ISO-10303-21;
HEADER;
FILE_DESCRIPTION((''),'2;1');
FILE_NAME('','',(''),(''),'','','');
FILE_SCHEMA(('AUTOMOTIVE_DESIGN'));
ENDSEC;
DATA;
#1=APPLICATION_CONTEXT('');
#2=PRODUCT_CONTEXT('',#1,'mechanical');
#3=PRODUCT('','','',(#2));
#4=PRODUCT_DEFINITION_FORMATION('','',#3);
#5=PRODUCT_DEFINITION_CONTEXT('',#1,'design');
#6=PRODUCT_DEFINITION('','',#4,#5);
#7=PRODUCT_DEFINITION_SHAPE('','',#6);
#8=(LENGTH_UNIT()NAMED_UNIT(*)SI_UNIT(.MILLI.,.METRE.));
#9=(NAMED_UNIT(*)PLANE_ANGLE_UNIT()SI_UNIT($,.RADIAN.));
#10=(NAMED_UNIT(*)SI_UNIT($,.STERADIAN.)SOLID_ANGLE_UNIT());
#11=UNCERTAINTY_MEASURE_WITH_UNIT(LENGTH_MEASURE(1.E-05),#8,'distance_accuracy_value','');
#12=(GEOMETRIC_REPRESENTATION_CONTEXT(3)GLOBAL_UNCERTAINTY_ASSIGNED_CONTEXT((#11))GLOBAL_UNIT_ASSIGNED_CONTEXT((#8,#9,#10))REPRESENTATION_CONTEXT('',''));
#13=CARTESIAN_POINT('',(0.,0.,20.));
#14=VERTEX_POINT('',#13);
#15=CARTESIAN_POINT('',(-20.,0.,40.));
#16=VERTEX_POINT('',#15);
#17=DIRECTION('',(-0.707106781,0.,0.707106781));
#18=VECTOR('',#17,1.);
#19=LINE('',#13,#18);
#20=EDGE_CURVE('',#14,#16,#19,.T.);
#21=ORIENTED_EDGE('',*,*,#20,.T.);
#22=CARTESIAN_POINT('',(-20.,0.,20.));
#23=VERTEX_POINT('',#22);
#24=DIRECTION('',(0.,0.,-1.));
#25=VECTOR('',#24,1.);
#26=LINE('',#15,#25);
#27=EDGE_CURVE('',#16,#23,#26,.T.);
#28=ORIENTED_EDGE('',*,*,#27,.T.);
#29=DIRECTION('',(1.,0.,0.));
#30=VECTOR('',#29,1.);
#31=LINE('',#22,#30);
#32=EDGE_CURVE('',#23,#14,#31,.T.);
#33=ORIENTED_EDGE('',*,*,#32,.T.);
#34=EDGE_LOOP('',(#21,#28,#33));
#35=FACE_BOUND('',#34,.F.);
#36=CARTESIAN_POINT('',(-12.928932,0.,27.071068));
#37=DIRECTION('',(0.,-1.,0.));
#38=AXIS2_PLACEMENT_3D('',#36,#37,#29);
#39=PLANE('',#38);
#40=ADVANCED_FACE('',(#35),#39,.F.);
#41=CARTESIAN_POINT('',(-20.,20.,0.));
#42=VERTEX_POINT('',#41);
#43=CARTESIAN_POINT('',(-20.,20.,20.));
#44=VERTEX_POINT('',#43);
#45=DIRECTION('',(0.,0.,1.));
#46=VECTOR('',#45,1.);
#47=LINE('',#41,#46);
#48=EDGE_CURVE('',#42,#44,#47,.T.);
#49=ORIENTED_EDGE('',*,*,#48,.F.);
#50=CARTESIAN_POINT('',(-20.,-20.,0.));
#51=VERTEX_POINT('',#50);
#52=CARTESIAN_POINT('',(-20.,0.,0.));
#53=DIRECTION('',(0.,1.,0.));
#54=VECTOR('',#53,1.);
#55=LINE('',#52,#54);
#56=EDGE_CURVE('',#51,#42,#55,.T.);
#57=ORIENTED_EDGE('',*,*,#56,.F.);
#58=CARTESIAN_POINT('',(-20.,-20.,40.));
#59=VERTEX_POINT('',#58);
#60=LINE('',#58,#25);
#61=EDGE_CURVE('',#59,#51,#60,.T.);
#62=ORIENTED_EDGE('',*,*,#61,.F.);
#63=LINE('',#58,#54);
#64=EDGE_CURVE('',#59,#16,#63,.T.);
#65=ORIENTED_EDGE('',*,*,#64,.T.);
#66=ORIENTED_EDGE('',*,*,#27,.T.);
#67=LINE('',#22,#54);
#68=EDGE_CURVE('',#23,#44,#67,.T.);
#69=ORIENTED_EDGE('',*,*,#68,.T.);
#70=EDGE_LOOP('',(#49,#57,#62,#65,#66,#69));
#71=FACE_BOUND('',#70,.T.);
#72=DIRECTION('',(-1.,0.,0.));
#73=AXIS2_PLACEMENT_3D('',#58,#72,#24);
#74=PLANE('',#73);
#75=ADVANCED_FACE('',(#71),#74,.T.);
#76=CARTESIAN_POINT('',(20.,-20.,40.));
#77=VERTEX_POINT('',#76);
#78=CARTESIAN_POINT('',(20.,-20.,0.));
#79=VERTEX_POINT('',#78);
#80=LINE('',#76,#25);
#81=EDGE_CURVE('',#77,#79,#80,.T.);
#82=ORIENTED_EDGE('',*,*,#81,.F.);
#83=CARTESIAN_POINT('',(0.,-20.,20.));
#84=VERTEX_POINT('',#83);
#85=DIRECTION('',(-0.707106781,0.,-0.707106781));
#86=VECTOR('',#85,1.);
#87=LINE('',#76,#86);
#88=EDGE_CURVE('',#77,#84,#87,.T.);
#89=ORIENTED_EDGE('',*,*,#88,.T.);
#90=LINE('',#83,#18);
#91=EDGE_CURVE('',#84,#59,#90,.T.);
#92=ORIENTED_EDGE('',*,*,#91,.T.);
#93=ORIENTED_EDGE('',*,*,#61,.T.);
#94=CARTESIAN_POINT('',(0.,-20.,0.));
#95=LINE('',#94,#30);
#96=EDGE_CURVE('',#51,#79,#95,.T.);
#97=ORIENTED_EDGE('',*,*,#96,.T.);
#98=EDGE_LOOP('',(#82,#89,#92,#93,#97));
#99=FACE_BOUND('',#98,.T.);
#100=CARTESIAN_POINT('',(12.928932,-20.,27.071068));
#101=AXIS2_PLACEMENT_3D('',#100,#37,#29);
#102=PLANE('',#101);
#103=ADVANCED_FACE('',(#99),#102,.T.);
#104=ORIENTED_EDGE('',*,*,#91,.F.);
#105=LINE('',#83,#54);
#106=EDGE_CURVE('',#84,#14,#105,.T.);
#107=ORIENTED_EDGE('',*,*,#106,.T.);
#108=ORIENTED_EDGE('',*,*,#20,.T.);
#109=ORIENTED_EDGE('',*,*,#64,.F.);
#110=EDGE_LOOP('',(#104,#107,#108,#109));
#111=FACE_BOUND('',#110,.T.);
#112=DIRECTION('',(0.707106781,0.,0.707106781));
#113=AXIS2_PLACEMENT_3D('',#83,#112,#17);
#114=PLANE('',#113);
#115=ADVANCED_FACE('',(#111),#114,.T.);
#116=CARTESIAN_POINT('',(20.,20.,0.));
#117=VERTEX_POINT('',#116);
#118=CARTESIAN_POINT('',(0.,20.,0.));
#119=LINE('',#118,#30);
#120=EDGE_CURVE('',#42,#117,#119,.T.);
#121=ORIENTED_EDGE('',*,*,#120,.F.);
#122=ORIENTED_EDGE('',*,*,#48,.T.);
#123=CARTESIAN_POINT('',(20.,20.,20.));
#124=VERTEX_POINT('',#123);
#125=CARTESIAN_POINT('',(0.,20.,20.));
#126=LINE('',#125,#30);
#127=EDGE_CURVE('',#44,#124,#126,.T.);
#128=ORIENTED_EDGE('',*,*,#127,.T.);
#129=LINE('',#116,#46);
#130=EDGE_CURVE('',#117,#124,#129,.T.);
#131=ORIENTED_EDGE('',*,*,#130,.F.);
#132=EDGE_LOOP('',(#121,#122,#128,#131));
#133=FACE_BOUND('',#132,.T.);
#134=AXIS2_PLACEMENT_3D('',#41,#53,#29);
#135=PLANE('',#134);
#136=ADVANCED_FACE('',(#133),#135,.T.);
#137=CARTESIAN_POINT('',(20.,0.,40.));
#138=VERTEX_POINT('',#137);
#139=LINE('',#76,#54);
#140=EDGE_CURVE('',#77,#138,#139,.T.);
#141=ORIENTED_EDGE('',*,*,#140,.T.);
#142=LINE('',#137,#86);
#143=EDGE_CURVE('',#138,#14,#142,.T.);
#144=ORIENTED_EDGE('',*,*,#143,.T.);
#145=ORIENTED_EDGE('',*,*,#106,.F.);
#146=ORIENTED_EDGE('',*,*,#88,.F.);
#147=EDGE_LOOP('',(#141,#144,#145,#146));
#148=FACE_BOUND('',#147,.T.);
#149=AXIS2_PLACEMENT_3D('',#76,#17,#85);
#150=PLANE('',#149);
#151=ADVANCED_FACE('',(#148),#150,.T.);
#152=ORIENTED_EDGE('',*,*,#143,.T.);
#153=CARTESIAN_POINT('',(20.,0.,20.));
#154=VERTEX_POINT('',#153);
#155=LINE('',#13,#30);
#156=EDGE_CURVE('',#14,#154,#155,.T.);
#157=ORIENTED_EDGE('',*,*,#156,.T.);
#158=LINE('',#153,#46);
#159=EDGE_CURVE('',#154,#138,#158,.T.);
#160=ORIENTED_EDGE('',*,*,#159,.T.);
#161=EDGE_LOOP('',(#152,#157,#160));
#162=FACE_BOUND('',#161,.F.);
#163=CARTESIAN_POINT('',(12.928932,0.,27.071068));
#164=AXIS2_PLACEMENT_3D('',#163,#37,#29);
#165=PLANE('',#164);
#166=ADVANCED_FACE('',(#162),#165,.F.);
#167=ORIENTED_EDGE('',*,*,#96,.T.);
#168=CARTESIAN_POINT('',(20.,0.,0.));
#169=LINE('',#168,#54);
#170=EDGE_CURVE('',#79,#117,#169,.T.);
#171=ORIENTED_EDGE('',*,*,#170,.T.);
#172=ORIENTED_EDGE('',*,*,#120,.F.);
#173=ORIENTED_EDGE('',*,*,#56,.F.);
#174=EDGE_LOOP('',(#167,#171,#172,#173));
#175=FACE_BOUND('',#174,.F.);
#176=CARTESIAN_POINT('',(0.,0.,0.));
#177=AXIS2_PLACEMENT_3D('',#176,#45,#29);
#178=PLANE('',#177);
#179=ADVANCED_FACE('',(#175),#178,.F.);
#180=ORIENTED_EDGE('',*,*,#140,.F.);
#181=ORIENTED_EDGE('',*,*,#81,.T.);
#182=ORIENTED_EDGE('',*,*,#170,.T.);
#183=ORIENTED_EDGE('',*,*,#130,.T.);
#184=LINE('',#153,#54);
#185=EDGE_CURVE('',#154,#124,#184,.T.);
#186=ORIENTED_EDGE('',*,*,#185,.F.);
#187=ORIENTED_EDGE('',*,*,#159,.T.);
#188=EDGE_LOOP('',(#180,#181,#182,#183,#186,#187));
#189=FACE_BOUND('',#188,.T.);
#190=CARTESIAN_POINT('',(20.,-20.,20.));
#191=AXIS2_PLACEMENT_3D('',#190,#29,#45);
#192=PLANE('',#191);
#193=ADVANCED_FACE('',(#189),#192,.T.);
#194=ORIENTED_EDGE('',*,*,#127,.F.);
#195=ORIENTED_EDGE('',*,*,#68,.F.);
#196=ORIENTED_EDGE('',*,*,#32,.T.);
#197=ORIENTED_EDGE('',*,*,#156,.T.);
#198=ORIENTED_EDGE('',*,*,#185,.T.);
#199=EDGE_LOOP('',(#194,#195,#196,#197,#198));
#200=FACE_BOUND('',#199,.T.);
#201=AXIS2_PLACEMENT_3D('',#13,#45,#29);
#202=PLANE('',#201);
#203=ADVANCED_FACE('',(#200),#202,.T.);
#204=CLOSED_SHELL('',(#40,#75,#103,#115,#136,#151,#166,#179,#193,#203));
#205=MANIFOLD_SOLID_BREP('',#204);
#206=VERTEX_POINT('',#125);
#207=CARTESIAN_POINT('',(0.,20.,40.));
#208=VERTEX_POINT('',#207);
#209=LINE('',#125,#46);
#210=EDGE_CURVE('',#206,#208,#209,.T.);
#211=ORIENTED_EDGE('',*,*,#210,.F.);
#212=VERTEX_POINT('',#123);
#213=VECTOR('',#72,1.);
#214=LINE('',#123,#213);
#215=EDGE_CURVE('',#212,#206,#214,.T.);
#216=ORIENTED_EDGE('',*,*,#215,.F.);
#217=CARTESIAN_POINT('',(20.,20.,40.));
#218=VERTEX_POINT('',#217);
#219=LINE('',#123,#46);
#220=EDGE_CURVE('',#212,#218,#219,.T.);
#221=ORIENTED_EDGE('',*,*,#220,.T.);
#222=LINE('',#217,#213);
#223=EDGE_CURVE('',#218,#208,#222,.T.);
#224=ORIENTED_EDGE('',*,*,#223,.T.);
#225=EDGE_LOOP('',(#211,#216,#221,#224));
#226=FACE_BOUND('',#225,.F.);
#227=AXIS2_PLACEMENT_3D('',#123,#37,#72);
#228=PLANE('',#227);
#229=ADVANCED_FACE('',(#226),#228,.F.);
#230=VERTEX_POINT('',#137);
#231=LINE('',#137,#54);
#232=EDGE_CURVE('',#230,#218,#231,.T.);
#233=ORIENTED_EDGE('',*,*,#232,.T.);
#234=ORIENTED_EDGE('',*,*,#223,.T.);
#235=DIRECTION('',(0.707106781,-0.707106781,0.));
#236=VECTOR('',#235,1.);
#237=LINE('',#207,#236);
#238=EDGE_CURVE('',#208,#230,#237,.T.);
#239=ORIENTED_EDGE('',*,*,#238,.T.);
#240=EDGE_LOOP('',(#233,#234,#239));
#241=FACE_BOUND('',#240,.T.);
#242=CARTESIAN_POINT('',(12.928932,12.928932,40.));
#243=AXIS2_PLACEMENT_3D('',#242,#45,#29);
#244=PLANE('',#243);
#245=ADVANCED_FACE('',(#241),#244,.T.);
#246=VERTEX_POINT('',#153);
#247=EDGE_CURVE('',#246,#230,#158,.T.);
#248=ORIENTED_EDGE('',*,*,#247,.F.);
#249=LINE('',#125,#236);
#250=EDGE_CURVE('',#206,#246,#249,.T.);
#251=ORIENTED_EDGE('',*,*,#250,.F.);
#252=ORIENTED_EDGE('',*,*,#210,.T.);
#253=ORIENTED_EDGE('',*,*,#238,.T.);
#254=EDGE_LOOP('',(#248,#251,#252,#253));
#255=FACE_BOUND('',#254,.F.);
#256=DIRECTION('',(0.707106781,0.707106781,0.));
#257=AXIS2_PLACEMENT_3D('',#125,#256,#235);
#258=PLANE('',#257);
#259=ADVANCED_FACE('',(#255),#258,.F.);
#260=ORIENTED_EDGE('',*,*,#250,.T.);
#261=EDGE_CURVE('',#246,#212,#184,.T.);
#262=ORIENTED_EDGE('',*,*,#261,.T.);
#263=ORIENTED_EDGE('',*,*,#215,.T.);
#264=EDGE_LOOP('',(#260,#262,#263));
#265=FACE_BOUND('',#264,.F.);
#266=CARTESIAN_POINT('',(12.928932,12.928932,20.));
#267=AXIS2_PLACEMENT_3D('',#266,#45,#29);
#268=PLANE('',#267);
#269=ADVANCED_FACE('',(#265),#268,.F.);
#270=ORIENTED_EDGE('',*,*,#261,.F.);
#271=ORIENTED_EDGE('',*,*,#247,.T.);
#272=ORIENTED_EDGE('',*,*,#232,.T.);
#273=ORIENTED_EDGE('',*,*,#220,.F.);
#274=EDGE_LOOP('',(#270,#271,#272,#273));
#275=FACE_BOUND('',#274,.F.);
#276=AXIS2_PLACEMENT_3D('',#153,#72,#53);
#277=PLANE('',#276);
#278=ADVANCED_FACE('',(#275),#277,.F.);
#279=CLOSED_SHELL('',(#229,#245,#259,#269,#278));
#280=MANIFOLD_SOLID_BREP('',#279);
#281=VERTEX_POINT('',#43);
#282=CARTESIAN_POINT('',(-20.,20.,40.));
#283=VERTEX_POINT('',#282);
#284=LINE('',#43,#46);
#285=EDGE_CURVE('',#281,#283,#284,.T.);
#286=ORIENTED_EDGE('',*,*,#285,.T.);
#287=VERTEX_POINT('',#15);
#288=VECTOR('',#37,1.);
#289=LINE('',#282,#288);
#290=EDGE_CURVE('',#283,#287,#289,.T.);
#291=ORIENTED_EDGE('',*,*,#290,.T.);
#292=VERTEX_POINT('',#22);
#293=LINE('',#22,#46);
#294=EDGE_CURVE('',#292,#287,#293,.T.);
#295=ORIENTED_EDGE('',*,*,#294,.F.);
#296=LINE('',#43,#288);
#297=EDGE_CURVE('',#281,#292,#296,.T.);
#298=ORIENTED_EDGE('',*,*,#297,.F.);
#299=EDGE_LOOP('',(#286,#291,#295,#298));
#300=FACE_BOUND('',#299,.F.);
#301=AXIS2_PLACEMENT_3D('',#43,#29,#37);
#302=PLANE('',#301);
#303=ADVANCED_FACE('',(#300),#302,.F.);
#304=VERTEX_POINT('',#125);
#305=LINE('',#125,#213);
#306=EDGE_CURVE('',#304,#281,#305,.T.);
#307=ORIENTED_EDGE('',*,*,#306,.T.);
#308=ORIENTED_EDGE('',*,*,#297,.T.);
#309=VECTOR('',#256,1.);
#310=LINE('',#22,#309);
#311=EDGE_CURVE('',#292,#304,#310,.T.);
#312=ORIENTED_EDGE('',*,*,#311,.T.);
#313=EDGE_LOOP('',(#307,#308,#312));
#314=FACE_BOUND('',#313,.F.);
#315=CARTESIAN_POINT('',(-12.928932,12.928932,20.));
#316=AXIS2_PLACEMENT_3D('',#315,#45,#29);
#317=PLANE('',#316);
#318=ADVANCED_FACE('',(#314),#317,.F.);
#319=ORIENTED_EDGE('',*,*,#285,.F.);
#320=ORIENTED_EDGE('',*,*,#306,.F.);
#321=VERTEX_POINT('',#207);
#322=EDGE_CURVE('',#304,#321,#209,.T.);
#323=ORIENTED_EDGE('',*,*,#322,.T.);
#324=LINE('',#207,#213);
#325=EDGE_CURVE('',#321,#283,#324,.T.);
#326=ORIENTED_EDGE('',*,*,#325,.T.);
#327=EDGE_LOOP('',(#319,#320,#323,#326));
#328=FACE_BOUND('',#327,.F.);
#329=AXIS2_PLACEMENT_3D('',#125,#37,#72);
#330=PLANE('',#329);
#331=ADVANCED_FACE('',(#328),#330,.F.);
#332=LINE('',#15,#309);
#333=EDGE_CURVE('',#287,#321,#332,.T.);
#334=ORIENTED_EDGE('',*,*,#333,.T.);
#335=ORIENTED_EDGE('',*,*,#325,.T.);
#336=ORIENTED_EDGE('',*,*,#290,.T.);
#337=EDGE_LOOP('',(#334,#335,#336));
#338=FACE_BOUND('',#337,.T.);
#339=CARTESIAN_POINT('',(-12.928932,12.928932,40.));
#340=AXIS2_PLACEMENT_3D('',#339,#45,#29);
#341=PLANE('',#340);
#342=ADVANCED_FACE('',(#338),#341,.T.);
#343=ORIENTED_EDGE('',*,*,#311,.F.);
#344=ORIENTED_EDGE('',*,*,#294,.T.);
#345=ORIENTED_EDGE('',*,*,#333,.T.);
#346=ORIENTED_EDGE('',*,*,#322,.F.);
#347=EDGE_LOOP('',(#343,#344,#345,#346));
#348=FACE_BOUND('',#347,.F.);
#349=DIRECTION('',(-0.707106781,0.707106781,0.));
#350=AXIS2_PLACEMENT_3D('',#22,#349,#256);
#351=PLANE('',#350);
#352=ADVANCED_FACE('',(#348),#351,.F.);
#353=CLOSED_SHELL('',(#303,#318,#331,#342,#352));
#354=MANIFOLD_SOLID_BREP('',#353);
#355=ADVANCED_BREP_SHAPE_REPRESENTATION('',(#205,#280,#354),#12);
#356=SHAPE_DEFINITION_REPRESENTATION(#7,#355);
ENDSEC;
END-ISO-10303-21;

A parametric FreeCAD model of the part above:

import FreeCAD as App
import Part
import Sketcher

V = App.Vector
Q = App.Units.Quantity

doc = App.newDocument("Part")
body = doc.addObject("PartDesign::Body", "Body")

# Sketch on XY plane
sketch1 = doc.addObject("Sketcher::SketchObject", "Sketch")
body.addObject(sketch1)
sketch1.AttachmentSupport = (doc.XY_Plane, [""])
sketch1.MapMode = "FlatFace"
sketch1.addGeometry([
    Part.LineSegment(V(-20, 20, 0), V(-20, -20, 0)),
    Part.LineSegment(V(-20, -20, 0), V(20, -20, 0)),
    Part.LineSegment(V(20, -20, 0), V(20, 20, 0)),
    Part.LineSegment(V(20, 20, 0), V(-20, 20, 0)),
], False)
sketch1.addConstraint([
    Sketcher.Constraint("Coincident", 0, 2, 1, 1),
    Sketcher.Constraint("Coincident", 1, 2, 2, 1),
    Sketcher.Constraint("Coincident", 2, 2, 3, 1),
    Sketcher.Constraint("Coincident", 3, 2, 0, 1),
    Sketcher.Constraint("Vertical", 0),
    Sketcher.Constraint("Horizontal", 1),
    Sketcher.Constraint("Vertical", 2),
    Sketcher.Constraint("Horizontal", 3),
    Sketcher.Constraint("Symmetric", 0, 2, 2, 2, -1, 1),
    Sketcher.Constraint("Equal", 3, 0),
    Sketcher.Constraint("DistanceX", 1, 1, 1, 2, Q("40 mm")),
])
pad1 = doc.addObject("PartDesign::Pad", "Pad")
body.addObject(pad1)
pad1.Profile = sketch1
pad1.Length = 20

# Sketch on XZ plane
sketch2 = doc.addObject("Sketcher::SketchObject", "Sketch001")
body.addObject(sketch2)
sketch2.AttachmentSupport = (doc.XZ_Plane, [""])
sketch2.MapMode = "FlatFace"
sketch2.AttachmentOffset = App.Placement(V(0, 0, 20), App.Rotation())
sketch2.addGeometry([
    Part.LineSegment(V(20, 40, 0), V(0, 20, 0)),  # 0
    Part.LineSegment(V(0, 20, 0), V(20, 20, 0)),  # 1
    Part.LineSegment(V(20, 20, 0), V(20, 40, 0)),  # 2
    Part.LineSegment(V(-20, 40, 0), V(-20, 20, 0)),  # 3
    Part.LineSegment(V(-20, 20, 0), V(0, 20, 0)),  # 4
    Part.LineSegment(V(0, 20, 0), V(-20, 40, 0)),  # 5
], False)
sketch2.addConstraint([
    Sketcher.Constraint("Coincident", 0, 2, 1, 1),
    Sketcher.Constraint("Coincident", 1, 2, 2, 1),
    Sketcher.Constraint("Coincident", 2, 2, 0, 1),
    Sketcher.Constraint("Coincident", 3, 2, 4, 1),
    Sketcher.Constraint("Coincident", 4, 2, 5, 1),
    Sketcher.Constraint("Coincident", 5, 2, 3, 1),
    Sketcher.Constraint("Horizontal", 1),
    Sketcher.Constraint("Vertical", 2),
    Sketcher.Constraint("Vertical", 3),
    Sketcher.Constraint("Horizontal", 4),
    Sketcher.Constraint("Coincident", 4, 2, 0, 2),
    Sketcher.Constraint("Symmetric", 2, 2, 5, 2, -2),
    Sketcher.Constraint("PointOnObject", 0, 2, -2),
    Sketcher.Constraint("Perpendicular", 0, 5),
    Sketcher.Constraint("DistanceX", 1, 1, 1, 2, Q("20 mm")),
    Sketcher.Constraint("DistanceY", -1, 1, 0, 2, Q("20 mm")),
])
pad2 = doc.addObject("PartDesign::Pad", "Pad001")
body.addObject(pad2)
pad2.Profile = sketch2
pad2.Length = 20
pad2.Reversed = True
body2 = doc.addObject("PartDesign::Body", "Body001")
body2.AllowCompound = True

# Sketch on XY plane
sketch3 = doc.addObject("Sketcher::SketchObject", "Sketch002")
body2.addObject(sketch3)
sketch3.AttachmentSupport = (doc.getObject("XY_Plane001"), [""])
sketch3.MapMode = "FlatFace"
sketch3.AttachmentOffset = App.Placement(V(0, 0, 20), App.Rotation())
sketch3.addGeometry([
    Part.LineSegment(V(-20, 0, 0), V(0, 20, 0)),  # 0
    Part.LineSegment(V(0, 20, 0), V(-20, 20, 0)),  # 1
    Part.LineSegment(V(-20, 20, 0), V(-20, 0, 0)),  # 2
    Part.LineSegment(V(20, 20, 0), V(0, 20, 0)),  # 3
    Part.LineSegment(V(0, 20, 0), V(20, 0, 0)),  # 4
    Part.LineSegment(V(20, 0, 0), V(20, 20, 0)),  # 5
], False)
sketch3.addConstraint([
    Sketcher.Constraint("Coincident", 0, 2, 1, 1),
    Sketcher.Constraint("Coincident", 1, 2, 2, 1),
    Sketcher.Constraint("Coincident", 2, 2, 0, 1),
    Sketcher.Constraint("Coincident", 3, 2, 4, 1),
    Sketcher.Constraint("Coincident", 4, 2, 5, 1),
    Sketcher.Constraint("Coincident", 5, 2, 3, 1),
    Sketcher.Constraint("Horizontal", 1),
    Sketcher.Constraint("Vertical", 2),
    Sketcher.Constraint("Horizontal", 3),
    Sketcher.Constraint("Vertical", 5),
    Sketcher.Constraint("Coincident", 3, 2, 0, 2),
    Sketcher.Constraint("Symmetric", 2, 2, 4, 2, -1, 1),
    Sketcher.Constraint("PointOnObject", 0, 2, -2),
    Sketcher.Constraint("PointOnObject", 2, 2, -1),
    Sketcher.Constraint("Perpendicular", 0, 4),
    Sketcher.Constraint("DistanceX", 1, 2, 1, 1, Q("20 mm")),
])
pad3 = doc.addObject("PartDesign::Pad", "Pad002")
body2.addObject(pad3)
pad3.Profile = sketch3
pad3.Length = 20

doc.recompute()
